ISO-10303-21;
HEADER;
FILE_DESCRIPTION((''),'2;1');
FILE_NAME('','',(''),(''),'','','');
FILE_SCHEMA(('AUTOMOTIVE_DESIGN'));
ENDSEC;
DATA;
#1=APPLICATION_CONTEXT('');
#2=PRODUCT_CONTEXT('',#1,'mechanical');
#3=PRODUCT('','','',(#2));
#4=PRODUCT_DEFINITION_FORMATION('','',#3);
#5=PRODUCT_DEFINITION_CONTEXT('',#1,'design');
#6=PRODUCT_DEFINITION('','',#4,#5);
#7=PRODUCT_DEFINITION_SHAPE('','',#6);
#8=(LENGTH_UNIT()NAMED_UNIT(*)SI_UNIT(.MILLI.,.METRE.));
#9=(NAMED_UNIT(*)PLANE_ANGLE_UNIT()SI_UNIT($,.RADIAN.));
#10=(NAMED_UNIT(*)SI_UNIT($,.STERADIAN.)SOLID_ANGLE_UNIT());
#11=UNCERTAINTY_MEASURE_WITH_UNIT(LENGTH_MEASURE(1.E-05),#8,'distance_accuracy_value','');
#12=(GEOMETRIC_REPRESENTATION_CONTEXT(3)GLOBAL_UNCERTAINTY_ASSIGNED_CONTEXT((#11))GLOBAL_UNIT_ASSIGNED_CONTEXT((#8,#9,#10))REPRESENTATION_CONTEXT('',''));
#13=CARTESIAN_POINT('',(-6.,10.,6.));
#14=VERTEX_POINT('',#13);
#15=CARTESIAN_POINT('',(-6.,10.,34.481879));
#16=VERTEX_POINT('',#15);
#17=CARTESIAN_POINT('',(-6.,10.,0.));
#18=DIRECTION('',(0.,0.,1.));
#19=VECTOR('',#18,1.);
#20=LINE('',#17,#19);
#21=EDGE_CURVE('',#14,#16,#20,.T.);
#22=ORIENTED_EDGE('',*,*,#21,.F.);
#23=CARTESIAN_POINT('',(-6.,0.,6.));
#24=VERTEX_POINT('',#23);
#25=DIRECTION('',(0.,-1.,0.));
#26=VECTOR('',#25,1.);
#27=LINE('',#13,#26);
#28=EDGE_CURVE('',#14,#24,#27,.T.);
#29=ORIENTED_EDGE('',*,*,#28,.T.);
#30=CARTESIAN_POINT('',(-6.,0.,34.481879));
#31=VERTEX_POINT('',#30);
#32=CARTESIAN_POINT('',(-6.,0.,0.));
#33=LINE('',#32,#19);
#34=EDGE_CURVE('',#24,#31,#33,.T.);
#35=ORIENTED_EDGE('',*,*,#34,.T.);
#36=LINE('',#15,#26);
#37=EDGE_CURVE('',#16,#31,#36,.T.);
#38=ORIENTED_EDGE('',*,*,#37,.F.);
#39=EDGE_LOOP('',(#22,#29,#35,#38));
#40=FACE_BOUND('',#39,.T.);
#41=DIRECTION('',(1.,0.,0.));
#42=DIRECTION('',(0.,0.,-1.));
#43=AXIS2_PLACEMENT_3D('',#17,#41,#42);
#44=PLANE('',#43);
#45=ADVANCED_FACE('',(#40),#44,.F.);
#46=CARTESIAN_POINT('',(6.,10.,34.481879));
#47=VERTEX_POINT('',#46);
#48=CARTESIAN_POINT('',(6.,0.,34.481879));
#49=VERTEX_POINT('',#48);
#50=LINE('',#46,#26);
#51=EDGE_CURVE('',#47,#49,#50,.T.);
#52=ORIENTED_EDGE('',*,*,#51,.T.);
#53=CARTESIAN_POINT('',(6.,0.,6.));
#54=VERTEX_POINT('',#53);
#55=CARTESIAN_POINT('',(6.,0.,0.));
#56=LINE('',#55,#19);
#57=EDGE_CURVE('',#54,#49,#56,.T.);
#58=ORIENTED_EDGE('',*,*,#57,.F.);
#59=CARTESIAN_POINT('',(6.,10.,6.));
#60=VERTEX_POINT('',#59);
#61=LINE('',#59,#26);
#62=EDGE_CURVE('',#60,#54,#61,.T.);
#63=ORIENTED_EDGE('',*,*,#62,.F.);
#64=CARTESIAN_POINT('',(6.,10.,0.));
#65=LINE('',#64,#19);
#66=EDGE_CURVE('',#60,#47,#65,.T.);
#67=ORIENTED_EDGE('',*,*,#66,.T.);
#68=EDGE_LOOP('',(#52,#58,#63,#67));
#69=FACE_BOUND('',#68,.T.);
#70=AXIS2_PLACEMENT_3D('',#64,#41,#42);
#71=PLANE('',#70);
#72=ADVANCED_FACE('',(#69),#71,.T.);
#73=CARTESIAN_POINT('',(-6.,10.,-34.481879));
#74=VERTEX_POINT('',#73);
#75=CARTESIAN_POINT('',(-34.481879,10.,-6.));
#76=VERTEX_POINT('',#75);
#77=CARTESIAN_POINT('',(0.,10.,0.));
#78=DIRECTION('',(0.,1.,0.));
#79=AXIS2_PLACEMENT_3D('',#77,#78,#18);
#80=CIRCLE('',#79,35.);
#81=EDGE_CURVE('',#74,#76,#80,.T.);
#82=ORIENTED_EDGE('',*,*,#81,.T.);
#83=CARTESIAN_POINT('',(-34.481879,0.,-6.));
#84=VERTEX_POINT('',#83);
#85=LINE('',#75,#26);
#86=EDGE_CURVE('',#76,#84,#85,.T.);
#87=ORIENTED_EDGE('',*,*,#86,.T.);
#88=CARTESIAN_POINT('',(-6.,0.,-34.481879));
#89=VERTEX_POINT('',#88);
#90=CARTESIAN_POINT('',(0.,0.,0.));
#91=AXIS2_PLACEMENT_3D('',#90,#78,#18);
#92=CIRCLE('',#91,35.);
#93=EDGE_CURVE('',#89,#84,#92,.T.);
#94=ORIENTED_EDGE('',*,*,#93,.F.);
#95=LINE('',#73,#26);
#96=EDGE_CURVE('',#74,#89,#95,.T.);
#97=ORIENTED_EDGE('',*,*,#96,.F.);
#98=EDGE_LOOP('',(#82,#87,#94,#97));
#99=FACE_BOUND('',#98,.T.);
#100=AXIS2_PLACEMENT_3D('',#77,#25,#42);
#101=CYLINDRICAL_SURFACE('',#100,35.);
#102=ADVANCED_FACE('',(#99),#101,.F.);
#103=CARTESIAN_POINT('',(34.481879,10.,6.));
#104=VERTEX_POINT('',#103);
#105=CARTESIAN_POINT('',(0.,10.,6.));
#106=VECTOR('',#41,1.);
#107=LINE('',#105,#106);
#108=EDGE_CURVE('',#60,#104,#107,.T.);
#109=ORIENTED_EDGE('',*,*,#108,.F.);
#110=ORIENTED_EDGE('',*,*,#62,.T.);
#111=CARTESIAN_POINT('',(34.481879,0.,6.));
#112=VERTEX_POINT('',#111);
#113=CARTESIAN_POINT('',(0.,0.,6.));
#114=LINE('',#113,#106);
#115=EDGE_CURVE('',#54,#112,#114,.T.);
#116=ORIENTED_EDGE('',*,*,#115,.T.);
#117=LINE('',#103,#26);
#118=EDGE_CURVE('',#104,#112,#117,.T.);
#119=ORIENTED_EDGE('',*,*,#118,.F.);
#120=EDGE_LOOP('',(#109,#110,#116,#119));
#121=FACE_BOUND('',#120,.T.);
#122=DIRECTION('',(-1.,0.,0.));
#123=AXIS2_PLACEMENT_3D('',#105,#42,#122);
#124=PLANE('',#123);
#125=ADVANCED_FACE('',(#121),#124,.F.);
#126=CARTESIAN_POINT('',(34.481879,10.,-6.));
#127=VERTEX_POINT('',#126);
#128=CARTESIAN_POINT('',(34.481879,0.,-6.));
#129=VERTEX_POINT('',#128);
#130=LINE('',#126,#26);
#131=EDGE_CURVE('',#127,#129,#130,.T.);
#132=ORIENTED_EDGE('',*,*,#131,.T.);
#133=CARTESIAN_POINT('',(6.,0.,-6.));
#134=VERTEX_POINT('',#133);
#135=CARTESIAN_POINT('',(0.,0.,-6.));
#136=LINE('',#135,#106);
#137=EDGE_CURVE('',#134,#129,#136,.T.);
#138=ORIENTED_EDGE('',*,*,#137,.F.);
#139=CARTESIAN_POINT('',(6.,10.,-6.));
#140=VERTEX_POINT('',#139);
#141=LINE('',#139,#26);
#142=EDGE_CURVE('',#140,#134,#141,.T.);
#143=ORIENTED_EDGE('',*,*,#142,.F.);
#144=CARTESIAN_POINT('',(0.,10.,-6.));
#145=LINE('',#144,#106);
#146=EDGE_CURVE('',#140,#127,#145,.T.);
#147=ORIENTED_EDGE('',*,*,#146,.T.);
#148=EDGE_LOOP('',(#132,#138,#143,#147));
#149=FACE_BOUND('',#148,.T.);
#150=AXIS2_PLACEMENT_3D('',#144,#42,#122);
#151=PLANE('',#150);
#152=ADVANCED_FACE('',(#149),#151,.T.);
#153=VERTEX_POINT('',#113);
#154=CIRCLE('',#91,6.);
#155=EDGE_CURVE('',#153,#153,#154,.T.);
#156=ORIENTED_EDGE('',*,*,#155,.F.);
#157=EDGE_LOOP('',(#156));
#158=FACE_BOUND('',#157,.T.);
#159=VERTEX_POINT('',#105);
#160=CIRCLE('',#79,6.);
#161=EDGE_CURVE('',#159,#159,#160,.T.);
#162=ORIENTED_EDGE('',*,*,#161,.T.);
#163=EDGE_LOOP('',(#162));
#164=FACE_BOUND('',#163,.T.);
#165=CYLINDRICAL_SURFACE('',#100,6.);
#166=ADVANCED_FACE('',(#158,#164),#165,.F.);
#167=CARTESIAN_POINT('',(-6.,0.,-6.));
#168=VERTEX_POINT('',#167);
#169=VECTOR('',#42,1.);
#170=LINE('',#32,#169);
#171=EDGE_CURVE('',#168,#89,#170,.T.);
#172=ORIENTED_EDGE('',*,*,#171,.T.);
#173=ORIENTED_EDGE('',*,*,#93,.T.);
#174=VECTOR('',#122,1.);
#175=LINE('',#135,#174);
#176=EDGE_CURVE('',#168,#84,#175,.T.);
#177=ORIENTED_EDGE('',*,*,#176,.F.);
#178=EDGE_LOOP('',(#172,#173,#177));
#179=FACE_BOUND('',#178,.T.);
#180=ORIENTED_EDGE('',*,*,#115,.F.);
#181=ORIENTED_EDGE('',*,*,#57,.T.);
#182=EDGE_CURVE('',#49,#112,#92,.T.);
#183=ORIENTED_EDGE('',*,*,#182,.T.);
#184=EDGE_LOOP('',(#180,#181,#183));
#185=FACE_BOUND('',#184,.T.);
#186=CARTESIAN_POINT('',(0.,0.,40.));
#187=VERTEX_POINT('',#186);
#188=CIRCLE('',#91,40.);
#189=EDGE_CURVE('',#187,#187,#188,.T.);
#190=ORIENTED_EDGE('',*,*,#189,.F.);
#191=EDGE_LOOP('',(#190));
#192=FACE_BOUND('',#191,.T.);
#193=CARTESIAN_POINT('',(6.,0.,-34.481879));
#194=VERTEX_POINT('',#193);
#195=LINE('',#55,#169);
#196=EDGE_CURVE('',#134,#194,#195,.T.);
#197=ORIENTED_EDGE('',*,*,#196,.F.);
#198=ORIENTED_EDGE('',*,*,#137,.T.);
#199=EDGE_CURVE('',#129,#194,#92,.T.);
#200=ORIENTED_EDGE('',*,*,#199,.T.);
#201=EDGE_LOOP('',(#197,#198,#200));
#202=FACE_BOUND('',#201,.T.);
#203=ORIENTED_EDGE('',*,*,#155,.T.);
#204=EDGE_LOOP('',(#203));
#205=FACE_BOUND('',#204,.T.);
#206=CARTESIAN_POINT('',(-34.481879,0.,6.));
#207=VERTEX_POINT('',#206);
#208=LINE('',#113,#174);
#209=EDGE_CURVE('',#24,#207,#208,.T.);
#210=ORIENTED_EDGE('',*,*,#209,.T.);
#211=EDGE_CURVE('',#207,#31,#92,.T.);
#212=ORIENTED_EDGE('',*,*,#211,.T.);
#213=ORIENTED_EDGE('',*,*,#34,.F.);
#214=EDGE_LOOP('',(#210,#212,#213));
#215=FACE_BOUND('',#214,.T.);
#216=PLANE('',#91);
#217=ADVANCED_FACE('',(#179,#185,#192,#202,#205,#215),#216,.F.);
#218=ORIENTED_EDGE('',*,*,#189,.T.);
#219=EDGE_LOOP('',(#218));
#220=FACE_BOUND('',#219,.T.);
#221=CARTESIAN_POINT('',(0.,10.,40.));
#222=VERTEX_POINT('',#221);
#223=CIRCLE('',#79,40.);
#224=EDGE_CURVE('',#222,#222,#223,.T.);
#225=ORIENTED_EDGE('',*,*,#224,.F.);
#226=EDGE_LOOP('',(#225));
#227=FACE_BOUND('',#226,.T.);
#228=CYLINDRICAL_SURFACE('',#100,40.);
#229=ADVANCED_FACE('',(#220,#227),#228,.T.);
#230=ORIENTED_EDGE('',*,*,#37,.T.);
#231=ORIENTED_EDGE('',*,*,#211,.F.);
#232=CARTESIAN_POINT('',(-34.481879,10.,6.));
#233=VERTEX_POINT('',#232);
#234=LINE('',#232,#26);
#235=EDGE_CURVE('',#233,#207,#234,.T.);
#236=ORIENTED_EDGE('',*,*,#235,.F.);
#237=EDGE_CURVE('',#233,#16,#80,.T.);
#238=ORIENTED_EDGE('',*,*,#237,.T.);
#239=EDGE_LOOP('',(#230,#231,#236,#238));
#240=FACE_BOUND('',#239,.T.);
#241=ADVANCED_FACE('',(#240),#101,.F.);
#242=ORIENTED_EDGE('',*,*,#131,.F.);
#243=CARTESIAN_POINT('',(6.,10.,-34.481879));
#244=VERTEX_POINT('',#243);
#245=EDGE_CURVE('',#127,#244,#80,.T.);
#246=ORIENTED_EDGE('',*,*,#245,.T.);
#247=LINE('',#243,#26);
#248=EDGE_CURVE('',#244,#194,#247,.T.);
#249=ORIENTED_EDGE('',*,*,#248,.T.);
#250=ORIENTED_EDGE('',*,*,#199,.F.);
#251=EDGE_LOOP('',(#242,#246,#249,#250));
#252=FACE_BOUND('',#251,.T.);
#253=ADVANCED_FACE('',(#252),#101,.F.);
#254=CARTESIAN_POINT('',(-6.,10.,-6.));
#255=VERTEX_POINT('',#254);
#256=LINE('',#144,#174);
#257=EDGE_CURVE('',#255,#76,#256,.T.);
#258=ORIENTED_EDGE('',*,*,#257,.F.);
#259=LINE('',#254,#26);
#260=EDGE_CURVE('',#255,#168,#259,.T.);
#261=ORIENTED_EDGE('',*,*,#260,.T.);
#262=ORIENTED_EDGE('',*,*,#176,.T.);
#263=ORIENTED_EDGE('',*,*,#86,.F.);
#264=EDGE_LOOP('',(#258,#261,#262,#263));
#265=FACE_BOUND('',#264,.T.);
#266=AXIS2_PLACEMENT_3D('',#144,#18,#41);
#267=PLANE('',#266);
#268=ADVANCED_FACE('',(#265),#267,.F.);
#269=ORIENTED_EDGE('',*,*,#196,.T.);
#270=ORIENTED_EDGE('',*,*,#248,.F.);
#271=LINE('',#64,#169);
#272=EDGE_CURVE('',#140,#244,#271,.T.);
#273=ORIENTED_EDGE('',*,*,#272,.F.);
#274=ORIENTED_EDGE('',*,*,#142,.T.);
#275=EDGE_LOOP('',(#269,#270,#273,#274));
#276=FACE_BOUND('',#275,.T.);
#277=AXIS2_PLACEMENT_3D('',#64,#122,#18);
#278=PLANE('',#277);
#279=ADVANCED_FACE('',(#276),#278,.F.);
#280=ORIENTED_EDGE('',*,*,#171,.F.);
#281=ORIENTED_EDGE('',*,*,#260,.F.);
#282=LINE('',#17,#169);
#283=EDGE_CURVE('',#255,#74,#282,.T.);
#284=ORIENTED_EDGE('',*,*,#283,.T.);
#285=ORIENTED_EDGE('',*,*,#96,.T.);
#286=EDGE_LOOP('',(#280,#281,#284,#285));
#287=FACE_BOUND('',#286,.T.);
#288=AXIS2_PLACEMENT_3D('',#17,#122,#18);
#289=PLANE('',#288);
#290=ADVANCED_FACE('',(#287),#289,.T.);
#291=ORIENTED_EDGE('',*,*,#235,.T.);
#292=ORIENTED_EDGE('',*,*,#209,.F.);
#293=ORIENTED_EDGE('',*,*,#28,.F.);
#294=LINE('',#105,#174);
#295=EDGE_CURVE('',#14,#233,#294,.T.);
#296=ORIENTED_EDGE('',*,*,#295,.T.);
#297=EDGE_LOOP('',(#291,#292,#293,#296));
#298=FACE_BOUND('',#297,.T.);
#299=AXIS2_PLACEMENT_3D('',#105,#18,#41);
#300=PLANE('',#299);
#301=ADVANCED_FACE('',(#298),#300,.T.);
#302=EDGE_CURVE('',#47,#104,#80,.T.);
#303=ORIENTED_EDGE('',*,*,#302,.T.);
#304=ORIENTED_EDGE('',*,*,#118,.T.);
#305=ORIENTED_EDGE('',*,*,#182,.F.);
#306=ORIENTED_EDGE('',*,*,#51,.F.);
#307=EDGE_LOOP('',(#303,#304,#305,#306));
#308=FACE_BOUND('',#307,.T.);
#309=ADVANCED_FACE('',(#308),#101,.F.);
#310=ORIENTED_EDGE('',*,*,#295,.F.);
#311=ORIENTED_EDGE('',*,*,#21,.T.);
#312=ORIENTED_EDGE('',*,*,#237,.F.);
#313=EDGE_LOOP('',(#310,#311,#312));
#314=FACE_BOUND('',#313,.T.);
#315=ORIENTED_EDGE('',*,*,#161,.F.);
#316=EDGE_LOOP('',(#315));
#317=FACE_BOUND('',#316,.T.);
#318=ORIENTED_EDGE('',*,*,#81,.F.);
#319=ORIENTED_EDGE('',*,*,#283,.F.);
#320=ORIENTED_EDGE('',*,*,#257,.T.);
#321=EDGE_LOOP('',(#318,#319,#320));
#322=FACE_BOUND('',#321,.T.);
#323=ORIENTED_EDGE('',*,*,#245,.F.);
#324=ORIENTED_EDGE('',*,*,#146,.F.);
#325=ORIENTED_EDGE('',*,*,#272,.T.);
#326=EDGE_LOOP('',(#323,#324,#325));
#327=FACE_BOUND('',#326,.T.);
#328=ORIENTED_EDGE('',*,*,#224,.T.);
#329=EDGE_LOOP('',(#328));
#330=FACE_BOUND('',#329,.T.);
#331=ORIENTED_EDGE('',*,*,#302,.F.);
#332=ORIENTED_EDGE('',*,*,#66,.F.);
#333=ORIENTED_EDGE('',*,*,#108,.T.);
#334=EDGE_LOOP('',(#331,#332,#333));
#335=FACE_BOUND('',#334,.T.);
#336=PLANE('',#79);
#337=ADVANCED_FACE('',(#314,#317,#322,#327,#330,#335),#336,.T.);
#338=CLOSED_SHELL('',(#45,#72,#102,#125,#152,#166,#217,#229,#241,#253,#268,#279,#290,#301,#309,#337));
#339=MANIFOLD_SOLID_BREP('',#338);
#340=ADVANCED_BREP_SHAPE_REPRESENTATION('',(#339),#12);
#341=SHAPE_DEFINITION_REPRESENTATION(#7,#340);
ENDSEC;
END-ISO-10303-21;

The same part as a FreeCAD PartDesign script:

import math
import FreeCAD as App
import Part
import Sketcher
Q = App.Units.Quantity

doc = App.newDocument("Part")
body = doc.addObject("PartDesign::Body", "Body")

sketch1 = body.newObject("Sketcher::SketchObject", "Sketch")
sketch1.AttachmentSupport = (doc.getObject("XZ_Plane"), [""])
sketch1.MapMode = "FlatFace"
sketch1.addGeometry([
    Part.Circle(App.Vector(0, 0, 0), App.Vector(0, 0, 1), 40),
    Part.LineSegment(App.Vector(-34, 6, 0), App.Vector(-6, 6, 0)),
    Part.LineSegment(App.Vector(-6, 6, 0), App.Vector(-6, 34, 0)),
    Part.ArcOfCircle(Part.Circle(App.Vector(0, 0, 0), App.Vector(0, 0, 1), 35), math.radians(100), math.radians(170)),
    Part.LineSegment(App.Vector(6, 34, 0), App.Vector(6, 6, 0)),
    Part.LineSegment(App.Vector(6, 6, 0), App.Vector(34, 6, 0)),
    Part.ArcOfCircle(Part.Circle(App.Vector(0, 0, 0), App.Vector(0, 0, 1), 35), math.radians(10), math.radians(80)),
    Part.LineSegment(App.Vector(-6, -34, 0), App.Vector(-6, -6, 0)),
    Part.LineSegment(App.Vector(-6, -6, 0), App.Vector(-34, -6, 0)),
    Part.ArcOfCircle(Part.Circle(App.Vector(0, 0, 0), App.Vector(0, 0, 1), 35), math.radians(-170), math.radians(-100)),
    Part.ArcOfCircle(Part.Circle(App.Vector(0, 0, 0), App.Vector(0, 0, 1), 6), math.radians(90), math.radians(180)),
    Part.ArcOfCircle(Part.Circle(App.Vector(0, 0, 0), App.Vector(0, 0, 1), 6), math.radians(180), math.radians(270)),
    Part.ArcOfCircle(Part.Circle(App.Vector(0, 0, 0), App.Vector(0, 0, 1), 6), math.radians(-90), math.radians(0)),
    Part.ArcOfCircle(Part.Circle(App.Vector(0, 0, 0), App.Vector(0, 0, 1), 6), math.radians(0), math.radians(90)),
    Part.LineSegment(App.Vector(34, -6, 0), App.Vector(6, -6, 0)),
    Part.LineSegment(App.Vector(6, -6, 0), App.Vector(6, -34, 0)),
    Part.ArcOfCircle(Part.Circle(App.Vector(0, 0, 0), App.Vector(0, 0, 1), 35), math.radians(-80), math.radians(-10)),
], False)
sketch1.addConstraint([
    Sketcher.Constraint("Coincident", 1, 2, 2, 1),
    Sketcher.Constraint("Coincident", 2, 2, 3, 1),
    Sketcher.Constraint("Coincident", 3, 2, 1, 1),
    Sketcher.Constraint("Coincident", 4, 2, 5, 1),
    Sketcher.Constraint("Coincident", 5, 2, 6, 1),
    Sketcher.Constraint("Coincident", 6, 2, 4, 1),
    Sketcher.Constraint("Coincident", 7, 2, 8, 1),
    Sketcher.Constraint("Coincident", 8, 2, 9, 1),
    Sketcher.Constraint("Coincident", 9, 2, 7, 1),
    Sketcher.Constraint("Tangent", 10, 2, 11, 1),
    Sketcher.Constraint("Tangent", 11, 2, 12, 1),
    Sketcher.Constraint("Tangent", 12, 2, 13, 1),
    Sketcher.Constraint("Tangent", 13, 2, 10, 1),
    Sketcher.Constraint("Coincident", 14, 2, 15, 1),
    Sketcher.Constraint("Coincident", 15, 2, 16, 1),
    Sketcher.Constraint("Coincident", 16, 2, 14, 1),
    Sketcher.Constraint("Horizontal", 1),
    Sketcher.Constraint("Vertical", 2),
    Sketcher.Constraint("Vertical", 4),
    Sketcher.Constraint("Horizontal", 5),
    Sketcher.Constraint("Vertical", 7),
    Sketcher.Constraint("Horizontal", 8),
    Sketcher.Constraint("Horizontal", 14),
    Sketcher.Constraint("Vertical", 15),
    Sketcher.Constraint("Coincident", 0, 3, -1, 1),
    Sketcher.Constraint("Coincident", 3, 3, -1, 1),
    Sketcher.Constraint("Coincident", 6, 3, -1, 1),
    Sketcher.Constraint("Coincident", 9, 3, -1, 1),
    Sketcher.Constraint("Coincident", 10, 3, -1, 1),
    Sketcher.Constraint("Coincident", 16, 3, -1, 1),
    Sketcher.Constraint("Equal", 3, 6),
    Sketcher.Constraint("Equal", 6, 9),
    Sketcher.Constraint("Equal", 10, 11),
    Sketcher.Constraint("Equal", 9, 16),
    Sketcher.Constraint("Symmetric", 4, 2, 7, 2, -1, 1),
    Sketcher.Constraint("Symmetric", 1, 2, 14, 2, -1, 1),
    Sketcher.Constraint("Symmetric", 1, 2, 4, 2, -2),
    Sketcher.Constraint("PointOnObject", 10, 2, -1),
    Sketcher.Constraint("PointOnObject", 11, 2, -2),
    Sketcher.Constraint("PointOnObject", 12, 2, -1),
    Sketcher.Constraint("PointOnObject", 13, 2, -2),
    Sketcher.Constraint("Horizontal", 8, 2, 11, 2),
    Sketcher.Constraint("Vertical", 9, 2, 10, 2),
    Sketcher.Constraint("Diameter", 0, Q("80 mm")),
    Sketcher.Constraint("Radius", 3, Q("35 mm")),
    Sketcher.Constraint("Radius", 10, Q("6 mm")),
])
pad1 = body.newObject("PartDesign::Pad", "Pad")
pad1.Profile = sketch1
pad1.Length = 10
pad1.Reversed = True

doc.recompute()
